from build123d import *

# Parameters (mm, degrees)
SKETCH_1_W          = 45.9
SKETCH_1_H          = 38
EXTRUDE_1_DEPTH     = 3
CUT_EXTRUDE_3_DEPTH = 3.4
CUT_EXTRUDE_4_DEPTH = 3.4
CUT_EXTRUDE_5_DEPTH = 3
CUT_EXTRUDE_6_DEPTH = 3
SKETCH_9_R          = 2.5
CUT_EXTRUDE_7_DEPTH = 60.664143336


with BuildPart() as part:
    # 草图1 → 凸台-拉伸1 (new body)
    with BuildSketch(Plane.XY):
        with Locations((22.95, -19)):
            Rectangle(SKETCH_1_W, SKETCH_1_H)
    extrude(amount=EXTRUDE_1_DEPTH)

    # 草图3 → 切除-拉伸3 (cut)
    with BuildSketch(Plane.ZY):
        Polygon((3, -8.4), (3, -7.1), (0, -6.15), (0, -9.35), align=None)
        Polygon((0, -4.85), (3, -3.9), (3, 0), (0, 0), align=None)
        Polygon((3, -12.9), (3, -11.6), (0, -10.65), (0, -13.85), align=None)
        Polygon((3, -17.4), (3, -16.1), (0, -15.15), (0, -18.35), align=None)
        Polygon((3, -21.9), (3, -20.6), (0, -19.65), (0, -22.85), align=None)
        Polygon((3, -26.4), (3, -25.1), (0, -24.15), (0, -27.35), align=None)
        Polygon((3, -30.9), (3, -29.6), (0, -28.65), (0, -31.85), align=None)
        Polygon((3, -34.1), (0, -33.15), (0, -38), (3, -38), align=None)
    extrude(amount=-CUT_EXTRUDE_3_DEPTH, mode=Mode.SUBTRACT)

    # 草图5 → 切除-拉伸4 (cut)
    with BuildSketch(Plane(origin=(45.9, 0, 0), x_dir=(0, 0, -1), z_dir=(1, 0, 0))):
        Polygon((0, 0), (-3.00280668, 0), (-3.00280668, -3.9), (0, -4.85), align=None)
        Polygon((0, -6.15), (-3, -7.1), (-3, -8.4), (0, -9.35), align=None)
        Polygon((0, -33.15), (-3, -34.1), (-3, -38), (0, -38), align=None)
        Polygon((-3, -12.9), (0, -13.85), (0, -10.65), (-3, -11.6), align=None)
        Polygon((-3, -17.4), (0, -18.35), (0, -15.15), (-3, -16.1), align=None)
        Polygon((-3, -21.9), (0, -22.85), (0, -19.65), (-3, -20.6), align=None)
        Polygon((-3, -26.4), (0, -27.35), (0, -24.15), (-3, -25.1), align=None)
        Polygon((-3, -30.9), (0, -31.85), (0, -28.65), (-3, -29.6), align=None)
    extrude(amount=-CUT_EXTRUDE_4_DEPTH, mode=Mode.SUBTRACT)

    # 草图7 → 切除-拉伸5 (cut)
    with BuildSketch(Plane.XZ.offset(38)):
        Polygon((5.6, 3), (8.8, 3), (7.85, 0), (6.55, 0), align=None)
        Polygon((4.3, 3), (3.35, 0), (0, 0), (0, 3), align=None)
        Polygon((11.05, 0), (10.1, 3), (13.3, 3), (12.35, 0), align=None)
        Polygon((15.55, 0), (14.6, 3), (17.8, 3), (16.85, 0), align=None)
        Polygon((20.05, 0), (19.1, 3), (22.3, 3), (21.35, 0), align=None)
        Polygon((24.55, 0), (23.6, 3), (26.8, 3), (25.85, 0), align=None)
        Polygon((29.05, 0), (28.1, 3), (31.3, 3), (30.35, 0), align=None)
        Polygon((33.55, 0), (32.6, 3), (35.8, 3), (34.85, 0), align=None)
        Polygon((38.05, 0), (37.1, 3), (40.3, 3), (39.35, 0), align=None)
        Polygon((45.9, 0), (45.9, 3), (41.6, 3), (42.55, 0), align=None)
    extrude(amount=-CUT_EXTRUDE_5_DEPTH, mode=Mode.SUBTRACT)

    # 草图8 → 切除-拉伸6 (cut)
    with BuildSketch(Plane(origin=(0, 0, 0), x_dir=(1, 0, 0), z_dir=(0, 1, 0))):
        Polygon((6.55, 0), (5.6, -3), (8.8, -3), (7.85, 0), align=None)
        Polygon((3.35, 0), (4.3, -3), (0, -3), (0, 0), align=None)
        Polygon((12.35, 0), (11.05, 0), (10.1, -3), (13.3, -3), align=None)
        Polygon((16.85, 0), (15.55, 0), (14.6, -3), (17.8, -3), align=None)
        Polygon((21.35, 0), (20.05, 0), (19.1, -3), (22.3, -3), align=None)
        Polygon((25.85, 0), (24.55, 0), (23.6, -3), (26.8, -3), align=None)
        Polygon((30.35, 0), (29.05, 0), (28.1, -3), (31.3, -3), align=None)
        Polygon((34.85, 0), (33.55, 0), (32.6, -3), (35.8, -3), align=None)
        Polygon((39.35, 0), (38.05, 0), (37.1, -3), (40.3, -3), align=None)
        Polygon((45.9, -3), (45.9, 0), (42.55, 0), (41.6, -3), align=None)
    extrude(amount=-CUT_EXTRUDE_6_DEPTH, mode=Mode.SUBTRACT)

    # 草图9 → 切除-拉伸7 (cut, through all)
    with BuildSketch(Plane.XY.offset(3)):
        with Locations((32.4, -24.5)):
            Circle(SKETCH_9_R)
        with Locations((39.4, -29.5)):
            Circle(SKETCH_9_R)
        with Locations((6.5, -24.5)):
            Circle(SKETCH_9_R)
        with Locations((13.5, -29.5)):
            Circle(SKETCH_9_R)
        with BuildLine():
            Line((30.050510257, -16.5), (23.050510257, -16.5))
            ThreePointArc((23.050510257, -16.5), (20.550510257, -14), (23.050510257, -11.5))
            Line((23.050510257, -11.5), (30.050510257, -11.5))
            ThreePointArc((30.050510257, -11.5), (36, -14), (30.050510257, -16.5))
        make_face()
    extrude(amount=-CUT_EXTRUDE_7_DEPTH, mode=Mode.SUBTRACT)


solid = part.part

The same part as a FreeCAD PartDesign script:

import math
import FreeCAD as App
import Part
import Sketcher

V = App.Vector
Q = App.Units.Quantity


def add_polygon(sketch, points):
    """Adds a closed chain of lines whose ends are joined by coincident constraints."""
    first, n = sketch.GeometryCount, len(points)
    for a, b in zip(points, points[1:] + points[:1]):
        sketch.addGeometry(Part.LineSegment(App.Vector(*a, 0), App.Vector(*b, 0)), False)
    for i in range(n):
        sketch.addConstraint(Sketcher.Constraint("Coincident", first + i, 2, first + (i + 1) % n, 1))

doc = App.newDocument("Part")
body = doc.addObject("PartDesign::Body", "Body")

# Sketch on XY plane
sketch1 = body.newObject("Sketcher::SketchObject", "Sketch")
sketch1.AttachmentSupport = (doc.getObject("XY_Plane"), [""])
sketch1.MapMode = "FlatFace"
add_polygon(sketch1, [(0, 0), (0, -38), (46, -38), (46, 0)])  # lines 0-3
sketch1.addConstraint([
    Sketcher.Constraint("Vertical", 0),
    Sketcher.Constraint("Horizontal", 1),
    Sketcher.Constraint("Vertical", 2),
    Sketcher.Constraint("Horizontal", 3),
    Sketcher.Constraint("Coincident", 3, 2, -1, 1),
    Sketcher.Constraint("DistanceY", 0, 2, 0, 1, Q("38 mm")),
    Sketcher.Constraint("DistanceX", 1, 1, 1, 2, Q("45.9 mm")),
])
pad1 = body.newObject("PartDesign::Pad", "Pad")
pad1.Profile = sketch1
pad1.Length = 3

# Sketch on YZ plane
sketch2 = body.newObject("Sketcher::SketchObject", "Sketch001")
sketch2.AttachmentSupport = (doc.getObject("YZ_Plane"), [""])
sketch2.MapMode = "FlatFace"
add_polygon(sketch2, [(-8.4, 3), (-7.1, 3), (-6.2, 0), (-9.3, 0)])  # lines 0-3
add_polygon(sketch2, [(-4.8, 0), (-3.9, 3), (0, 3), (0, 0)])  # lines 4-7
add_polygon(sketch2, [(-12.9, 3), (-11.6, 3), (-10.7, 0), (-13.8, 0)])  # lines 8-11
add_polygon(sketch2, [(-17.4, 3), (-16.1, 3), (-15.2, 0), (-18.4, 0)])  # lines 12-15
add_polygon(sketch2, [(-21.9, 3), (-20.6, 3), (-19.6, 0), (-22.9, 0)])  # lines 16-19
add_polygon(sketch2, [(-26.4, 3), (-25.1, 3), (-24.1, 0), (-27.4, 0)])  # lines 20-23
add_polygon(sketch2, [(-30.9, 3), (-29.6, 3), (-28.6, 0), (-31.9, 0)])  # lines 24-27
add_polygon(sketch2, [(-34.1, 3), (-33.1, 0), (-38, 0), (-38, 3)])  # lines 28-31
sketch2.addConstraint([
    Sketcher.Constraint("Horizontal", 0),
    Sketcher.Constraint("Horizontal", 2),
    Sketcher.Constraint("Horizontal", 5),
    Sketcher.Constraint("Vertical", 6),
    Sketcher.Constraint("Horizontal", 7),
    Sketcher.Constraint("Horizontal", 8),
    Sketcher.Constraint("Horizontal", 10),
    Sketcher.Constraint("Horizontal", 12),
    Sketcher.Constraint("Horizontal", 14),
    Sketcher.Constraint("Horizontal", 16),
    Sketcher.Constraint("Horizontal", 18),
    Sketcher.Constraint("Horizontal", 20),
    Sketcher.Constraint("Horizontal", 22),
    Sketcher.Constraint("Horizontal", 24),
    Sketcher.Constraint("Horizontal", 26),
    Sketcher.Constraint("Horizontal", 29),
    Sketcher.Constraint("Vertical", 30),
    Sketcher.Constraint("Horizontal", 31),
    Sketcher.Constraint("Coincident", 6, 2, -1, 1),
    Sketcher.Constraint("PointOnObject", 1, 2, -1),
    Sketcher.Constraint("PointOnObject", 9, 2, -1),
    Sketcher.Constraint("PointOnObject", 13, 2, -1),
    Sketcher.Constraint("PointOnObject", 17, 2, -1),
    Sketcher.Constraint("PointOnObject", 21, 2, -1),
    Sketcher.Constraint("PointOnObject", 25, 2, -1),
    Sketcher.Constraint("PointOnObject", 28, 2, -1),
    Sketcher.Constraint("Parallel", 3, 4),
    Sketcher.Constraint("Parallel", 1, 9),
    Sketcher.Constraint("Parallel", 4, 11),
    Sketcher.Constraint("Parallel", 9, 13),
    Sketcher.Constraint("Parallel", 11, 15),
    Sketcher.Constraint("Parallel", 13, 17),
    Sketcher.Constraint("Parallel", 15, 19),
    Sketcher.Constraint("Parallel", 17, 21),
    Sketcher.Constraint("Parallel", 19, 23),
    Sketcher.Constraint("Parallel", 21, 25),
    Sketcher.Constraint("Parallel", 23, 27),
    Sketcher.Constraint("Parallel", 25, 28),
    Sketcher.Constraint("Horizontal", 3, 2, 4, 2),
    Sketcher.Constraint("Horizontal", 5, 2, 8, 2),
    Sketcher.Constraint("Horizontal", 11, 2, 12, 2),
    Sketcher.Constraint("Horizontal", 15, 2, 16, 2),
    Sketcher.Constraint("Horizontal", 19, 2, 20, 2),
    Sketcher.Constraint("Horizontal", 23, 2, 24, 2),
    Sketcher.Constraint("Horizontal", 27, 2, 30, 2),
    Sketcher.Constraint("Equal", 0, 8),
    Sketcher.Constraint("Equal", 8, 12),
    Sketcher.Constraint("Equal", 12, 16),
    Sketcher.Constraint("Equal", 16, 20),
    Sketcher.Constraint("Equal", 20, 24),
    Sketcher.Constraint("Equal", 7, 29),
    Sketcher.Constraint("Equal", 5, 31),
    Sketcher.Constraint("DistanceY", 6, 2, 6, 1, Q("3 mm")),
    Sketcher.Constraint("DistanceX", 0, 1, 0, 2, Q("1.3 mm")),
    Sketcher.Constraint("DistanceX", 2, 2, 2, 1, Q("3.2 mm")),
    Sketcher.Constraint("DistanceX", 5, 1, 5, 2, Q("3.9 mm")),
    Sketcher.Constraint("DistanceX", 29, 2, -1, 1, Q("38 mm")),
    Sketcher.Constraint("DistanceX", 0, 2, -1, 1, Q("7.1 mm")),
    Sketcher.Constraint("DistanceX", 8, 2, -1, 1, Q("11.6 mm")),
    Sketcher.Constraint("DistanceX", 12, 2, -1, 1, Q("16.1 mm")),
    Sketcher.Constraint("DistanceX", 16, 2, -1, 1, Q("20.6 mm")),
    Sketcher.Constraint("DistanceX", 20, 2, -1, 1, Q("25.1 mm")),
    Sketcher.Constraint("DistanceX", 24, 2, -1, 1, Q("29.6 mm")),
])
pocket1 = body.newObject("PartDesign::Pocket", "Pocket")
pocket1.Profile = sketch2
pocket1.Length = 3.4
pocket1.Reversed = True

# Sketch on YZ plane
sketch3 = body.newObject("Sketcher::SketchObject", "Sketch002")
sketch3.AttachmentSupport = (doc.getObject("YZ_Plane"), [""])
sketch3.MapMode = "FlatFace"
sketch3.AttachmentOffset = App.Placement(V(0, 0, 45.9), App.Rotation())
add_polygon(sketch3, [(0, 0), (0, 3), (-3.9, 3), (-4.8, 0)])  # lines 0-3
add_polygon(sketch3, [(-6.2, 0), (-7.1, 3), (-8.4, 3), (-9.3, 0)])  # lines 4-7
add_polygon(sketch3, [(-33.1, 0), (-34.1, 3), (-38, 3), (-38, 0)])  # lines 8-11
add_polygon(sketch3, [(-12.9, 3), (-13.8, 0), (-10.7, 0), (-11.6, 3)])  # lines 12-15
add_polygon(sketch3, [(-17.4, 3), (-18.4, 0), (-15.2, 0), (-16.1, 3)])  # lines 16-19
add_polygon(sketch3, [(-21.9, 3), (-22.9, 0), (-19.6, 0), (-20.6, 3)])  # lines 20-23
add_polygon(sketch3, [(-26.4, 3), (-27.4, 0), (-24.1, 0), (-25.1, 3)])  # lines 24-27
add_polygon(sketch3, [(-30.9, 3), (-31.9, 0), (-28.6, 0), (-29.6, 3)])  # lines 28-31
sketch3.addConstraint([
    Sketcher.Constraint("Vertical", 0),
    Sketcher.Constraint("Horizontal", 1),
    Sketcher.Constraint("Horizontal", 3),
    Sketcher.Constraint("Horizontal", 5),
    Sketcher.Constraint("Horizontal", 7),
    Sketcher.Constraint("Horizontal", 9),
    Sketcher.Constraint("Vertical", 10),
    Sketcher.Constraint("Horizontal", 11),
    Sketcher.Constraint("Horizontal", 13),
    Sketcher.Constraint("Horizontal", 15),
    Sketcher.Constraint("Horizontal", 17),
    Sketcher.Constraint("Horizontal", 19),
    Sketcher.Constraint("Horizontal", 21),
    Sketcher.Constraint("Horizontal", 23),
    Sketcher.Constraint("Horizontal", 25),
    Sketcher.Constraint("Horizontal", 27),
    Sketcher.Constraint("Horizontal", 29),
    Sketcher.Constraint("Horizontal", 31),
    Sketcher.Constraint("Coincident", 3, 2, -1, 1),
    Sketcher.Constraint("PointOnObject", 6, 2, -1),
    Sketcher.Constraint("PointOnObject", 10, 2, -1),
    Sketcher.Constraint("PointOnObject", 12, 2, -1),
    Sketcher.Constraint("PointOnObject", 16, 2, -1),
    Sketcher.Constraint("PointOnObject", 20, 2, -1),
    Sketcher.Constraint("PointOnObject", 24, 2, -1),
    Sketcher.Constraint("PointOnObject", 28, 2, -1),
    Sketcher.Constraint("Parallel", 4, 8),
    Sketcher.Constraint("Parallel", 6, 12),
    Sketcher.Constraint("Parallel", 8, 14),
    Sketcher.Constraint("Parallel", 12, 16),
    Sketcher.Constraint("Parallel", 14, 18),
    Sketcher.Constraint("Parallel", 16, 20),
    Sketcher.Constraint("Parallel", 18, 22),
    Sketcher.Constraint("Parallel", 20, 24),
    Sketcher.Constraint("Parallel", 22, 26),
    Sketcher.Constraint("Parallel", 24, 28),
    Sketcher.Constraint("Parallel", 26, 30),
    Sketcher.Constraint("Horizontal", 5, 2, 8, 2),
    Sketcher.Constraint("Horizontal", 9, 2, 14, 2),
    Sketcher.Constraint("Horizontal", 15, 2, 18, 2),
    Sketcher.Constraint("Horizontal", 19, 2, 22, 2),
    Sketcher.Constraint("Horizontal", 23, 2, 26, 2),
    Sketcher.Constraint("Horizontal", 27, 2, 30, 2),
    Sketcher.Constraint("Equal", 1, 9),
    Sketcher.Constraint("Equal", 3, 11),
    Sketcher.Constraint("Equal", 7, 13),
    Sketcher.Constraint("Equal", 13, 17),
    Sketcher.Constraint("Equal", 17, 21),
    Sketcher.Constraint("Equal", 21, 25),
    Sketcher.Constraint("Equal", 25, 29),
    Sketcher.Constraint("Equal", 4, 6),
    Sketcher.Constraint("DistanceY", 10, 2, 10, 1, Q("3 mm")),
    Sketcher.Constraint("DistanceX", 1, 2, 1, 1, Q("3.9 mm")),
    Sketcher.Constraint("DistanceX", 5, 2, 5, 1, Q("1.3 mm")),
    Sketcher.Constraint("DistanceX", 7, 1, 7, 2, Q("3.2 mm")),
    Sketcher.Constraint("DistanceX", 9, 2, -1, 1, Q("38 mm")),
    Sketcher.Constraint("DistanceX", 8, 2, 4, 2, Q("27 mm")),
    Sketcher.Constraint("DistanceX", 12, 2, 2, 2, Q("9 mm")),
    Sketcher.Constraint("DistanceX", 16, 2, 6, 2, Q("9 mm")),
    Sketcher.Constraint("DistanceX", 20, 2, 12, 2, Q("9 mm")),
    Sketcher.Constraint("DistanceX", 26, 2, -1, 1, Q("25.1 mm")),
    Sketcher.Constraint("DistanceX", 30, 2, -1, 1, Q("29.6 mm")),
    Sketcher.Constraint("Distance", 2, Q("3.1495 mm")),
])
pocket2 = body.newObject("PartDesign::Pocket", "Pocket001")
pocket2.Profile = sketch3
pocket2.Length = 3.4

# Sketch on XZ plane
sketch4 = body.newObject("Sketcher::SketchObject", "Sketch003")
sketch4.AttachmentSupport = (doc.getObject("XZ_Plane"), [""])
sketch4.MapMode = "FlatFace"
sketch4.AttachmentOffset = App.Placement(V(0, 0, 38), App.Rotation())
add_polygon(sketch4, [(8.8, 3), (5.6, 3), (6.5, 0), (7.8, 0)])  # lines 0-3
add_polygon(sketch4, [(3.4, 0), (4.3, 3), (0, 3), (0, 0)])  # lines 4-7
add_polygon(sketch4, [(10.1, 3), (11.1, 0), (12.3, 0), (13.3, 3)])  # lines 8-11
add_polygon(sketch4, [(14.6, 3), (15.6, 0), (16.9, 0), (17.8, 3)])  # lines 12-15
add_polygon(sketch4, [(19.1, 3), (20.1, 0), (21.4, 0), (22.3, 3)])  # lines 16-19
add_polygon(sketch4, [(23.6, 3), (24.6, 0), (25.9, 0), (26.8, 3)])  # lines 20-23
add_polygon(sketch4, [(28.1, 3), (29.1, 0), (30.4, 0), (31.3, 3)])  # lines 24-27
add_polygon(sketch4, [(32.6, 3), (33.5, 0), (34.9, 0), (35.8, 3)])  # lines 28-31
add_polygon(sketch4, [(37.1, 3), (38, 0), (39.4, 0), (40.3, 3)])  # lines 32-35
add_polygon(sketch4, [(45.9, 0), (45.9, 3), (41.6, 3), (42.5, 0)])  # lines 36-39
sketch4.addConstraint([
    Sketcher.Constraint("Horizontal", 0),
    Sketcher.Constraint("Horizontal", 2),
    Sketcher.Constraint("Horizontal", 5),
    Sketcher.Constraint("Vertical", 6),
    Sketcher.Constraint("Horizontal", 7),
    Sketcher.Constraint("Horizontal", 9),
    Sketcher.Constraint("Horizontal", 11),
    Sketcher.Constraint("Horizontal", 13),
    Sketcher.Constraint("Horizontal", 15),
    Sketcher.Constraint("Horizontal", 17),
    Sketcher.Constraint("Horizontal", 19),
    Sketcher.Constraint("Horizontal", 21),
    Sketcher.Constraint("Horizontal", 23),
    Sketcher.Constraint("Horizontal", 25),
    Sketcher.Constraint("Horizontal", 27),
    Sketcher.Constraint("Horizontal", 29),
    Sketcher.Constraint("Horizontal", 31),
    Sketcher.Constraint("Horizontal", 33),
    Sketcher.Constraint("Horizontal", 35),
    Sketcher.Constraint("Vertical", 36),
    Sketcher.Constraint("Horizontal", 37),
    Sketcher.Constraint("Horizontal", 39),
    Sketcher.Constraint("Coincident", 6, 2, -1, 1),
    Sketcher.Constraint("PointOnObject", 1, 2, -1),
    Sketcher.Constraint("PointOnObject", 8, 2, -1),
    Sketcher.Constraint("PointOnObject", 12, 2, -1),
    Sketcher.Constraint("PointOnObject", 16, 2, -1),
    Sketcher.Constraint("PointOnObject", 20, 2, -1),
    Sketcher.Constraint("PointOnObject", 24, 2, -1),
    Sketcher.Constraint("PointOnObject", 28, 2, -1),
    Sketcher.Constraint("PointOnObject", 32, 2, -1),
    Sketcher.Constraint("PointOnObject", 38, 2, -1),
    Sketcher.Constraint("Parallel", 3, 4),
    Sketcher.Constraint("Parallel", 1, 8),
    Sketcher.Constraint("Parallel", 4, 10),
    Sketcher.Constraint("Parallel", 8, 12),
    Sketcher.Constraint("Parallel", 10, 14),
    Sketcher.Constraint("Parallel", 12, 16),
    Sketcher.Constraint("Parallel", 14, 18),
    Sketcher.Constraint("Parallel", 16, 20),
    Sketcher.Constraint("Parallel", 18, 22),
    Sketcher.Constraint("Parallel", 20, 24),
    Sketcher.Constraint("Parallel", 22, 26),
    Sketcher.Constraint("Parallel", 24, 28),
    Sketcher.Constraint("Parallel", 26, 30),
    Sketcher.Constraint("Parallel", 28, 32),
    Sketcher.Constraint("Parallel", 30, 34),
    Sketcher.Constraint("Parallel", 32, 38),
    Sketcher.Constraint("Horizontal", 3, 2, 4, 2),
    Sketcher.Constraint("Horizontal", 5, 2, 10, 2),
    Sketcher.Constraint("Horizontal", 11, 2, 14, 2),
    Sketcher.Constraint("Horizontal", 15, 2, 18, 2),
    Sketcher.Constraint("Horizontal", 19, 2, 22, 2),
    Sketcher.Constraint("Horizontal", 23, 2, 26, 2),
    Sketcher.Constraint("Horizontal", 27, 2, 30, 2),
    Sketcher.Constraint("Horizontal", 31, 2, 34, 2),
    Sketcher.Constraint("Horizontal", 35, 2, 36, 2),
    Sketcher.Constraint("Equal", 2, 9),
    Sketcher.Constraint("Equal", 9, 13),
    Sketcher.Constraint("Equal", 13, 17),
    Sketcher.Constraint("Equal", 17, 21),
    Sketcher.Constraint("Equal", 21, 25),
    Sketcher.Constraint("Equal", 25, 29),
    Sketcher.Constraint("Equal", 29, 33),
    Sketcher.Constraint("Equal", 5, 37),
    Sketcher.Constraint("Equal", 7, 39),
    Sketcher.Constraint("DistanceY", 6, 2, 6, 1, Q("3 mm")),
    Sketcher.Constraint("DistanceX", 0, 2, 0, 1, Q("3.2 mm")),
    Sketcher.Constraint("DistanceX", 2, 1, 2, 2, Q("1.3 mm")),
    Sketcher.Constraint("DistanceX", 5, 2, 5, 1, Q("4.3 mm")),
    Sketcher.Constraint("DistanceX", -1, 1, 0, 2, Q("5.6 mm")),
    Sketcher.Constraint("DistanceX", -1, 1, 10, 2, Q("13.3 mm")),
    Sketcher.Constraint("DistanceX", -1, 1, 14, 2, Q("17.8 mm")),
    Sketcher.Constraint("DistanceX", -1, 1, 18, 2, Q("22.3 mm")),
    Sketcher.Constraint("DistanceX", -1, 1, 22, 2, Q("26.8 mm")),
    Sketcher.Constraint("DistanceX", -1, 1, 26, 2, Q("31.3 mm")),
    Sketcher.Constraint("DistanceX", -1, 1, 30, 2, Q("35.8 mm")),
    Sketcher.Constraint("DistanceX", -1, 1, 34, 2, Q("40.3 mm")),
    Sketcher.Constraint("DistanceX", -1, 1, 36, 2, Q("45.9 mm")),
])
pocket3 = body.newObject("PartDesign::Pocket", "Pocket002")
pocket3.Profile = sketch4
pocket3.Length = 3

# Sketch on XZ plane
sketch5 = body.newObject("Sketcher::SketchObject", "Sketch004")
sketch5.AttachmentSupport = (doc.getObject("XZ_Plane"), [""])
sketch5.MapMode = "FlatFace"
add_polygon(sketch5, [(6.5, 0), (5.6, 3), (8.8, 3), (7.8, 0)])  # lines 0-3
add_polygon(sketch5, [(4.3, 3), (3.4, 0), (0, 0), (0, 3)])  # lines 4-7
add_polygon(sketch5, [(12.3, 0), (11.1, 0), (10.1, 3), (13.3, 3)])  # lines 8-11
add_polygon(sketch5, [(16.9, 0), (15.6, 0), (14.6, 3), (17.8, 3)])  # lines 12-15
add_polygon(sketch5, [(21.4, 0), (20.1, 0), (19.1, 3), (22.3, 3)])  # lines 16-19
add_polygon(sketch5, [(25.9, 0), (24.6, 0), (23.6, 3), (26.8, 3)])  # lines 20-23
add_polygon(sketch5, [(30.4, 0), (29.1, 0), (28.1, 3), (31.3, 3)])  # lines 24-27
add_polygon(sketch5, [(34.9, 0), (33.5, 0), (32.6, 3), (35.8, 3)])  # lines 28-31
add_polygon(sketch5, [(39.4, 0), (38, 0), (37.1, 3), (40.3, 3)])  # lines 32-35
add_polygon(sketch5, [(45.9, 3), (45.9, 0), (42.5, 0), (41.6, 3)])  # lines 36-39
sketch5.addConstraint([
    Sketcher.Constraint("Horizontal", 1),
    Sketcher.Constraint("Horizontal", 3),
    Sketcher.Constraint("Horizontal", 5),
    Sketcher.Constraint("Vertical", 6),
    Sketcher.Constraint("Horizontal", 7),
    Sketcher.Constraint("Horizontal", 8),
    Sketcher.Constraint("Horizontal", 10),
    Sketcher.Constraint("Horizontal", 12),
    Sketcher.Constraint("Horizontal", 14),
    Sketcher.Constraint("Horizontal", 16),
    Sketcher.Constraint("Horizontal", 18),
    Sketcher.Constraint("Horizontal", 20),
    Sketcher.Constraint("Horizontal", 22),
    Sketcher.Constraint("Horizontal", 24),
    Sketcher.Constraint("Horizontal", 26),
    Sketcher.Constraint("Horizontal", 28),
    Sketcher.Constraint("Horizontal", 30),
    Sketcher.Constraint("Horizontal", 32),
    Sketcher.Constraint("Horizontal", 34),
    Sketcher.Constraint("Vertical", 36),
    Sketcher.Constraint("Horizontal", 37),
    Sketcher.Constraint("Horizontal", 39),
    Sketcher.Constraint("Coincident", 5, 2, -1, 1),
    Sketcher.Constraint("PointOnObject", 2, 2, -1),
    Sketcher.Constraint("PointOnObject", 8, 2, -1),
    Sketcher.Constraint("PointOnObject", 12, 2, -1),
    Sketcher.Constraint("PointOnObject", 16, 2, -1),
    Sketcher.Constraint("PointOnObject", 20, 2, -1),
    Sketcher.Constraint("PointOnObject", 24, 2, -1),
    Sketcher.Constraint("PointOnObject", 28, 2, -1),
    Sketcher.Constraint("PointOnObject", 32, 2, -1),
    Sketcher.Constraint("PointOnObject", 36, 2, -1),
    Sketcher.Constraint("Parallel", 2, 4),
    Sketcher.Constraint("Parallel", 0, 9),
    Sketcher.Constraint("Parallel", 4, 11),
    Sketcher.Constraint("Parallel", 9, 13),
    Sketcher.Constraint("Parallel", 11, 15),
    Sketcher.Constraint("Parallel", 13, 17),
    Sketcher.Constraint("Parallel", 15, 19),
    Sketcher.Constraint("Parallel", 17, 21),
    Sketcher.Constraint("Parallel", 19, 23),
    Sketcher.Constraint("Parallel", 21, 25),
    Sketcher.Constraint("Parallel", 23, 27),
    Sketcher.Constraint("Parallel", 25, 29),
    Sketcher.Constraint("Parallel", 27, 31),
    Sketcher.Constraint("Parallel", 29, 33),
    Sketcher.Constraint("Parallel", 31, 35),
    Sketcher.Constraint("Parallel", 33, 38),
    Sketcher.Constraint("Horizontal", 1, 2, 6, 2),
    Sketcher.Constraint("Horizontal", 7, 2, 9, 2),
    Sketcher.Constraint("Horizontal", 10, 2, 13, 2),
    Sketcher.Constraint("Horizontal", 14, 2, 17, 2),
    Sketcher.Constraint("Horizontal", 18, 2, 21, 2),
    Sketcher.Constraint("Horizontal", 22, 2, 25, 2),
    Sketcher.Constraint("Horizontal", 26, 2, 29, 2),
    Sketcher.Constraint("Horizontal", 30, 2, 33, 2),
    Sketcher.Constraint("Horizontal", 34, 2, 38, 2),
    Sketcher.Constraint("Equal", 3, 8),
    Sketcher.Constraint("Equal", 8, 12),
    Sketcher.Constraint("Equal", 12, 16),
    Sketcher.Constraint("Equal", 16, 20),
    Sketcher.Constraint("Equal", 20, 24),
    Sketcher.Constraint("Equal", 24, 28),
    Sketcher.Constraint("Equal", 28, 32),
    Sketcher.Constraint("Equal", 5, 37),
    Sketcher.Constraint("Equal", 7, 39),
    Sketcher.Constraint("DistanceY", 6, 1, 6, 2, Q("3 mm")),
    Sketcher.Constraint("DistanceX", 1, 1, 1, 2, Q("3.2 mm")),
    Sketcher.Constraint("DistanceX", 3, 2, 3, 1, Q("1.3 mm")),
    Sketcher.Constraint("DistanceX", 7, 1, 7, 2, Q("4.3 mm")),
    Sketcher.Constraint("DistanceX", -1, 1, 0, 2, Q("5.6 mm")),
    Sketcher.Constraint("DistanceX", -1, 1, 9, 2, Q("10.1 mm")),
    Sketcher.Constraint("DistanceX", -1, 1, 13, 2, Q("14.6 mm")),
    Sketcher.Constraint("DistanceX", -1, 1, 17, 2, Q("19.1 mm")),
    Sketcher.Constraint("DistanceX", -1, 1, 21, 2, Q("23.6 mm")),
    Sketcher.Constraint("DistanceX", -1, 1, 25, 2, Q("28.1 mm")),
    Sketcher.Constraint("DistanceX", -1, 1, 29, 2, Q("32.6 mm")),
    Sketcher.Constraint("DistanceX", -1, 1, 33, 2, Q("37.1 mm")),
    Sketcher.Constraint("DistanceX", -1, 1, 36, 2, Q("45.9 mm")),
])
pocket4 = body.newObject("PartDesign::Pocket", "Pocket003")
pocket4.Profile = sketch5
pocket4.Length = 3
pocket4.Reversed = True

# Sketch on XY plane
sketch6 = body.newObject("Sketcher::SketchObject", "Sketch005")
sketch6.AttachmentSupport = (doc.getObject("XY_Plane"), [""])
sketch6.MapMode = "FlatFace"
sketch6.AttachmentOffset = App.Placement(V(0, 0, 3), App.Rotation())
sketch6.addGeometry([
    Part.Circle(V(32.4, -24.5, 0), V(0, 0, 1), 2.5),  # 0
    Part.Circle(V(39.4, -29.5, 0), V(0, 0, 1), 2.5),  # 1
    Part.Circle(V(6.5, -24.5, 0), V(0, 0, 1), 2.5),  # 2
    Part.Circle(V(13.5, -29.5, 0), V(0, 0, 1), 2.5),  # 3
    Part.LineSegment(V(23.1, -16.5, 0), V(30.1, -16.5, 0)),  # 4
    Part.ArcOfCircle(Part.Circle(V(32.5, -14, 0), V(0, 0, 1), 3.5), math.radians(-134), math.radians(134)),  # 5
    Part.LineSegment(V(30.1, -11.5, 0), V(23.1, -11.5, 0)),  # 6
    Part.ArcOfCircle(Part.Circle(V(23.1, -14, 0), V(0, 0, 1), 2.5), math.radians(90), math.radians(270)),  # 7
], False)
sketch6.addConstraint([
    Sketcher.Constraint("Coincident", 4, 2, 5, 1),
    Sketcher.Constraint("Coincident", 5, 2, 6, 1),
    Sketcher.Constraint("Tangent", 6, 2, 7, 1),
    Sketcher.Constraint("Tangent", 7, 2, 4, 1),
    Sketcher.Constraint("Horizontal", 4),
    Sketcher.Constraint("Horizontal", 6),
    Sketcher.Constraint("Equal", 0, 1),
    Sketcher.Constraint("Equal", 1, 2),
    Sketcher.Constraint("Equal", 2, 3),
    Sketcher.Constraint("Equal", 3, 7),
    Sketcher.Constraint("Horizontal", 0, 3, 2, 3),
    Sketcher.Constraint("Horizontal", 1, 3, 3, 3),
    Sketcher.Constraint("Horizontal", 5, 3, 7, 3),
    Sketcher.Constraint("Diameter", 0, Q("5 mm")),
    Sketcher.Constraint("Radius", 5, Q("3.5 mm")),
    Sketcher.Constraint("DistanceX", 4, 1, 4, 2, Q("7 mm")),
    Sketcher.Constraint("DistanceY", 5, 3, -1, 1, Q("14 mm")),
    Sketcher.Constraint("DistanceX", 0, 3, 1, 3, Q("7 mm")),
    Sketcher.Constraint("DistanceY", 1, 3, 0, 3, Q("5 mm")),
    Sketcher.Constraint("DistanceX", 2, 3, 3, 3, Q("7 mm")),
    Sketcher.Constraint("DistanceX", 3, 3, 5, 3, Q("19 mm")),
    Sketcher.Constraint("DistanceY", 0, 3, 4, 2, Q("8 mm")),
    Sketcher.Constraint("DistanceX", -1, 1, 0, 3, Q("32.4 mm")),
    Sketcher.Constraint("DistanceX", -1, 1, 2, 3, Q("6.5 mm")),
])
pocket5 = body.newObject("PartDesign::Pocket", "Pocket004")
pocket5.Profile = sketch6
pocket5.Type = "ThroughAll"

doc.recompute()
